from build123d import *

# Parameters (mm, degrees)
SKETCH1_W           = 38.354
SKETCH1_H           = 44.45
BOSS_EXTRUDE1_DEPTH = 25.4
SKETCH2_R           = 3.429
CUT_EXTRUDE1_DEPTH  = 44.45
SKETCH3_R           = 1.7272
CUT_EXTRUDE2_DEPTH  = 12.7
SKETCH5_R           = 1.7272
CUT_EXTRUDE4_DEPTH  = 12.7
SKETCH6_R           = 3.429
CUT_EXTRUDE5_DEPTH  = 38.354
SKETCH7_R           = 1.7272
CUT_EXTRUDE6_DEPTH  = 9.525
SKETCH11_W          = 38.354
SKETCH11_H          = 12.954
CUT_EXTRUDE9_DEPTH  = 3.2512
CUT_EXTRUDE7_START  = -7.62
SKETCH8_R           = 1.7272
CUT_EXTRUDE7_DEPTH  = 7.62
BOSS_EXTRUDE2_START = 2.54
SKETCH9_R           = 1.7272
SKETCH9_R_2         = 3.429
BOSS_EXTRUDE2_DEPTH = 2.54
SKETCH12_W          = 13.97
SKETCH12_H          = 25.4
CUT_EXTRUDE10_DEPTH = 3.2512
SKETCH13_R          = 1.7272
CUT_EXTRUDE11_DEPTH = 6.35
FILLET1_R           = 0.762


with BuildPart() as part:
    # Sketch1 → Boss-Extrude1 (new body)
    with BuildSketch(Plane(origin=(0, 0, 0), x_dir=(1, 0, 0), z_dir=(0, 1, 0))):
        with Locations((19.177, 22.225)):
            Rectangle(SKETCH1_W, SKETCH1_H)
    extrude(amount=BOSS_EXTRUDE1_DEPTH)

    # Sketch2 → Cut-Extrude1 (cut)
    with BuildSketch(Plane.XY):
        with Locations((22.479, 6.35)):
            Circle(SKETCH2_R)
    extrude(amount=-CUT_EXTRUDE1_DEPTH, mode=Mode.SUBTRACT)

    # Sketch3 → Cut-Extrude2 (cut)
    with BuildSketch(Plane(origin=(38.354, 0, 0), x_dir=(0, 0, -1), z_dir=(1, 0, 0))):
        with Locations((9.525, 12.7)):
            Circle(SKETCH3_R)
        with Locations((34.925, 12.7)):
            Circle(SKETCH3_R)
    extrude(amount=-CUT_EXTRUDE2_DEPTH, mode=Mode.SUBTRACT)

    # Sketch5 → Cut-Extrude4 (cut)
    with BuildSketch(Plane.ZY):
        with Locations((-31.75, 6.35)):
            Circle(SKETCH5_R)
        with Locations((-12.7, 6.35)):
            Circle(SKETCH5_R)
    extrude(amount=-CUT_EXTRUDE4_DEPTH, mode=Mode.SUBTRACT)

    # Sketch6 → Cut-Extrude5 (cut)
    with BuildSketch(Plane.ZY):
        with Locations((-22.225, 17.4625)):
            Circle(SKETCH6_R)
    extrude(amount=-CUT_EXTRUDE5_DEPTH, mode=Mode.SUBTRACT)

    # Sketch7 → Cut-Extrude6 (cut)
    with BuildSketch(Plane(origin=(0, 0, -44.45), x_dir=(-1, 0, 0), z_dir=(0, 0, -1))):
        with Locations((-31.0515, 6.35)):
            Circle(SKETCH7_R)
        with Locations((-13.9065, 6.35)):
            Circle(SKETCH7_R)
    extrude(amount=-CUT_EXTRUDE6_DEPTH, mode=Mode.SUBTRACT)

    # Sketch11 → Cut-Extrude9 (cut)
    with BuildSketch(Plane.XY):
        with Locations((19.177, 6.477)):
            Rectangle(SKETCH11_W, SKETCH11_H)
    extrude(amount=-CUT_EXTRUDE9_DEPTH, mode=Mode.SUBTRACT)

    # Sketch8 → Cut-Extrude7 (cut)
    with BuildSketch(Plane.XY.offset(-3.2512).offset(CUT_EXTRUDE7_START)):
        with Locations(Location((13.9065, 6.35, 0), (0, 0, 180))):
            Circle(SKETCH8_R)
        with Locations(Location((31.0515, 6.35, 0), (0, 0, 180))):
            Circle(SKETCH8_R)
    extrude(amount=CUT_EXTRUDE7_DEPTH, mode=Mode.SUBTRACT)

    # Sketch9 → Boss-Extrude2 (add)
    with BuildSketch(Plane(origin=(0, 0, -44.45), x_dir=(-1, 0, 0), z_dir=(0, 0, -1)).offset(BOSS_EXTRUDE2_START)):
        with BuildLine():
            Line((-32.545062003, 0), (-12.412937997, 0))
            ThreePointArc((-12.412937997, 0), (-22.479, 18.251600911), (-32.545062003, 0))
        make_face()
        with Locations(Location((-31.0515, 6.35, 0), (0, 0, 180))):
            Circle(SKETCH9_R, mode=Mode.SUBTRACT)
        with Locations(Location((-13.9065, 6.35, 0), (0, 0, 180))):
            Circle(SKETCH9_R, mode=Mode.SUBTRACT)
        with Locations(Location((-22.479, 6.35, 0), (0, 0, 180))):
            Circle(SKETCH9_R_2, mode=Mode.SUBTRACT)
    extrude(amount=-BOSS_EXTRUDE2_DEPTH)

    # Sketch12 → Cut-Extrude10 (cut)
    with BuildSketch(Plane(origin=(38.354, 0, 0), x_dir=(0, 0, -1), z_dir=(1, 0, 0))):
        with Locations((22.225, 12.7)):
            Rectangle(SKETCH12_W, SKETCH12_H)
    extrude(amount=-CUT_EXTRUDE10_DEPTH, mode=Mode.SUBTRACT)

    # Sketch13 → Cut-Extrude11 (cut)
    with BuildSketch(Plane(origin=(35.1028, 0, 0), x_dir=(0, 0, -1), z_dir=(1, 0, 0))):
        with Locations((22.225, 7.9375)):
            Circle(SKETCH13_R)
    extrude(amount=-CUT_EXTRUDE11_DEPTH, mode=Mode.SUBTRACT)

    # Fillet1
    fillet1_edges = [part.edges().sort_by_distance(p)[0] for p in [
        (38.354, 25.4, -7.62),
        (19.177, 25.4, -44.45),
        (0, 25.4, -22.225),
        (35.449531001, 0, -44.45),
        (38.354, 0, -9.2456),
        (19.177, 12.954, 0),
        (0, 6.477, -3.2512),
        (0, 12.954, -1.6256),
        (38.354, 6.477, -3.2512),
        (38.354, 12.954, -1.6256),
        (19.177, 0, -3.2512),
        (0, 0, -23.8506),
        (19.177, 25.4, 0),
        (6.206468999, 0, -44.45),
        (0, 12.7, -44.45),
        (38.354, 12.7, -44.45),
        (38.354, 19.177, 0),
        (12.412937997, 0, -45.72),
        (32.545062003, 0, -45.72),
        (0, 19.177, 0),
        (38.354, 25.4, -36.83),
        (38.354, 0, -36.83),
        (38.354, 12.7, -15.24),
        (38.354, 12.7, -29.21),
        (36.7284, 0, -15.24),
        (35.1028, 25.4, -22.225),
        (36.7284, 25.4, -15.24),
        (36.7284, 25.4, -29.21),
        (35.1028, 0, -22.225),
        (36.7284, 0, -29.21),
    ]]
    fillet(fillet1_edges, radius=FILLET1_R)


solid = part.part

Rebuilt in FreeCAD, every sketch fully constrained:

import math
import FreeCAD as App
import Part
import Sketcher

V = App.Vector
Q = App.Units.Quantity


def edges_at(feature, points):
    """Names of the edges that pass closest to the given points."""
    edges = feature.Shape.Edges
    near = lambda p: min(range(len(edges)), key=lambda i: edges[i].distToShape(Part.Vertex(*p))[0])
    return sorted({f"Edge{near(p) + 1}" for p in points})


def add_polygon(sketch, points):
    """Adds a closed chain of lines whose ends are joined by coincident constraints."""
    first, n = sketch.GeometryCount, len(points)
    for a, b in zip(points, points[1:] + points[:1]):
        sketch.addGeometry(Part.LineSegment(App.Vector(*a, 0), App.Vector(*b, 0)), False)
    for i in range(n):
        sketch.addConstraint(Sketcher.Constraint("Coincident", first + i, 2, first + (i + 1) % n, 1))

doc = App.newDocument("Part")
params = doc.addObject("Spreadsheet::Sheet", "Params")
for row, (alias, value) in enumerate([
    ("sketch1_width", "1.51 in"),
    ("sketch1_height", "1.75 in"),
    ("pad1_length", "1 in"),
    ("sketch2_diameter", "0.27 in"),
    ("pocket1_length", "1.75 in"),
    ("sketch3_diameter", "0.136 in"),
    ("pocket2_length", "0.5 in"),
    ("sketch4_diameter", "0.136 in"),
    ("pocket3_length", "0.5 in"),
    ("sketch5_diameter", "0.27 in"),
    ("pocket4_length", "1.51 in"),
    ("sketch6_diameter", "0.136 in"),
    ("pocket5_length", "0.375 in"),
    ("sketch7_width", "1.51 in"),
    ("sketch7_height", "0.51 in"),
    ("pocket6_length", "0.128 in"),
    ("sketch8_diameter", "0.136 in"),
    ("pocket7_length", "0.3 in"),
    ("sketch9_diameter", "0.27 in"),
    ("sketch9_diameter2", "0.136 in"),
    ("pad2_length", "0.1 in"),
    ("sketch10_width", "1 in"),
    ("sketch10_height", "0.55 in"),
    ("pocket8_length", "0.128 in"),
    ("sketch11_diameter", "0.136 in"),
    ("pocket9_length", "0.25 in"),
    ("fillet_radius", "0.03 in"),
], start=1):
    params.set(f"A{row}", alias)
    params.set(f"B{row}", "=" + value)
    params.setAlias(f"B{row}", alias)

body = doc.addObject("PartDesign::Body", "Body")

# Sketch on XZ plane
sketch1 = body.newObject("Sketcher::SketchObject", "Sketch")
sketch1.AttachmentSupport = (doc.getObject("XZ_Plane"), [""])
sketch1.MapMode = "FlatFace"
add_polygon(sketch1, [(0, -44), (0, 0), (38, 0), (38, -44)])  # lines 0-3
sketch1.addConstraint(Sketcher.Constraint("Vertical", 0))
sketch1.addConstraint(Sketcher.Constraint("Horizontal", 1))
sketch1.addConstraint(Sketcher.Constraint("Vertical", 2))
sketch1.addConstraint(Sketcher.Constraint("Horizontal", 3))
sketch1.addConstraint(Sketcher.Constraint("Coincident", 0, 2, -1, 1))
sketch1.addConstraint(Sketcher.Constraint("DistanceX", 1, 1, 1, 2, Q("1.51 in")))
sketch1.addConstraint(Sketcher.Constraint("DistanceY", 0, 1, 0, 2, Q("1.75 in")))
sketch1.setExpression("Constraints[9]", "Params.sketch1_width")
sketch1.setExpression("Constraints[10]", "Params.sketch1_height")
pad1 = body.newObject("PartDesign::Pad", "Pad")
pad1.Profile = sketch1
pad1.setExpression("Length", "Params.pad1_length")
pad1.Reversed = True

# Sketch on XY plane
sketch2 = body.newObject("Sketcher::SketchObject", "Sketch001")
sketch2.AttachmentSupport = (doc.getObject("XY_Plane"), [""])
sketch2.MapMode = "FlatFace"
sketch2.addGeometry(Part.Circle(V(22.5, 6.3, 0), V(0, 0, 1), 3.4), False)
sketch2.addConstraint(Sketcher.Constraint("Diameter", 0, Q("0.27 in")))
sketch2.addConstraint(Sketcher.Constraint("DistanceY", -1, 1, 0, 3, Q("0.25 in")))
sketch2.addConstraint(Sketcher.Constraint("DistanceX", -1, 1, 0, 3, Q("0.885 in")))
sketch2.setExpression("Constraints[0]", "Params.sketch2_diameter")
pocket1 = body.newObject("PartDesign::Pocket", "Pocket")
pocket1.Profile = sketch2
pocket1.setExpression("Length", "Params.pocket1_length")

# Sketch on YZ plane
sketch3 = body.newObject("Sketcher::SketchObject", "Sketch002")
sketch3.AttachmentSupport = (doc.getObject("YZ_Plane"), [""])
sketch3.MapMode = "FlatFace"
sketch3.AttachmentOffset = App.Placement(V(0, 0, 1.51 * 25.4), App.Rotation())
sketch3.addGeometry(Part.Circle(V(12.7, -9.5, 0), V(0, 0, 1), 1.7), False)
sketch3.addGeometry(Part.Circle(V(12.7, -34.9, 0), V(0, 0, 1), 1.7), False)
sketch3.addConstraint(Sketcher.Constraint("Equal", 0, 1))
sketch3.addConstraint(Sketcher.Constraint("Vertical", 0, 3, 1, 3))
sketch3.addConstraint(Sketcher.Constraint("Diameter", 0, Q("0.136 in")))
sketch3.addConstraint(Sketcher.Constraint("DistanceY", 1, 3, 0, 3, Q("1 in")))
sketch3.addConstraint(Sketcher.Constraint("DistanceX", -1, 1, 0, 3, Q("0.5 in")))
sketch3.addConstraint(Sketcher.Constraint("DistanceY", 0, 3, -1, 1, Q("0.375 in")))
sketch3.setExpression("Constraints[2]", "Params.sketch3_diameter")
pocket2 = body.newObject("PartDesign::Pocket", "Pocket001")
pocket2.Profile = sketch3
pocket2.setExpression("Length", "Params.pocket2_length")

# Sketch on YZ plane
sketch4 = body.newObject("Sketcher::SketchObject", "Sketch003")
sketch4.AttachmentSupport = (doc.getObject("YZ_Plane"), [""])
sketch4.MapMode = "FlatFace"
sketch4.addGeometry(Part.Circle(V(6.3, -31.8, 0), V(0, 0, 1), 1.7), False)
sketch4.addGeometry(Part.Circle(V(6.3, -12.7, 0), V(0, 0, 1), 1.7), False)
sketch4.addConstraint(Sketcher.Constraint("Equal", 0, 1))
sketch4.addConstraint(Sketcher.Constraint("Vertical", 0, 3, 1, 3))
sketch4.addConstraint(Sketcher.Constraint("Diameter", 0, Q("0.136 in")))
sketch4.addConstraint(Sketcher.Constraint("DistanceY", 1, 3, -1, 1, Q("0.5 in")))
sketch4.addConstraint(Sketcher.Constraint("DistanceX", -1, 1, 0, 3, Q("0.25 in")))
sketch4.addConstraint(Sketcher.Constraint("DistanceY", 0, 3, -1, 1, Q("1.25 in")))
sketch4.setExpression("Constraints[2]", "Params.sketch4_diameter")
pocket3 = body.newObject("PartDesign::Pocket", "Pocket002")
pocket3.Profile = sketch4
pocket3.setExpression("Length", "Params.pocket3_length")
pocket3.Reversed = True

# Sketch on YZ plane
sketch5 = body.newObject("Sketcher::SketchObject", "Sketch004")
sketch5.AttachmentSupport = (doc.getObject("YZ_Plane"), [""])
sketch5.MapMode = "FlatFace"
sketch5.addGeometry(Part.Circle(V(17.5, -22.2, 0), V(0, 0, 1), 3.4), False)
sketch5.addConstraint(Sketcher.Constraint("Diameter", 0, Q("0.27 in")))
sketch5.addConstraint(Sketcher.Constraint("DistanceX", -1, 1, 0, 3, Q("0.6875 in")))
sketch5.addConstraint(Sketcher.Constraint("DistanceY", 0, 3, -1, 1, Q("0.875 in")))
sketch5.setExpression("Constraints[0]", "Params.sketch5_diameter")
pocket4 = body.newObject("PartDesign::Pocket", "Pocket003")
pocket4.Profile = sketch5
pocket4.setExpression("Length", "Params.pocket4_length")
pocket4.Reversed = True

# Sketch on XY plane
sketch6 = body.newObject("Sketcher::SketchObject", "Sketch005")
sketch6.AttachmentSupport = (doc.getObject("XY_Plane"), [""])
sketch6.MapMode = "FlatFace"
sketch6.AttachmentOffset = App.Placement(V(0, 0, -1.75 * 25.4), App.Rotation())
sketch6.addGeometry(Part.Circle(V(31.1, 6.3, 0), V(0, 0, 1), 1.7), False)
sketch6.addGeometry(Part.Circle(V(13.9, 6.3, 0), V(0, 0, 1), 1.7), False)
sketch6.addConstraint(Sketcher.Constraint("Equal", 0, 1))
sketch6.addConstraint(Sketcher.Constraint("Horizontal", 0, 3, 1, 3))
sketch6.addConstraint(Sketcher.Constraint("Diameter", 0, Q("0.136 in")))
sketch6.addConstraint(Sketcher.Constraint("DistanceY", -1, 1, 0, 3, Q("0.25 in")))
sketch6.addConstraint(Sketcher.Constraint("DistanceX", 1, 3, 0, 3, Q("0.675 in")))
sketch6.addConstraint(Sketcher.Constraint("DistanceX", -1, 1, 0, 3, Q("1.2225 in")))
sketch6.setExpression("Constraints[2]", "Params.sketch6_diameter")
pocket5 = body.newObject("PartDesign::Pocket", "Pocket004")
pocket5.Profile = sketch6
pocket5.setExpression("Length", "Params.pocket5_length")
pocket5.Reversed = True

# Sketch on XY plane
sketch7 = body.newObject("Sketcher::SketchObject", "Sketch006")
sketch7.AttachmentSupport = (doc.getObject("XY_Plane"), [""])
sketch7.MapMode = "FlatFace"
add_polygon(sketch7, [(0, 13), (0, 0), (38, 0), (38, 13)])  # lines 0-3
sketch7.addConstraint(Sketcher.Constraint("Vertical", 0))
sketch7.addConstraint(Sketcher.Constraint("Horizontal", 1))
sketch7.addConstraint(Sketcher.Constraint("Vertical", 2))
sketch7.addConstraint(Sketcher.Constraint("Horizontal", 3))
sketch7.addConstraint(Sketcher.Constraint("Coincident", 0, 2, -1, 1))
sketch7.addConstraint(Sketcher.Constraint("DistanceX", 1, 1, 1, 2, Q("1.51 in")))
sketch7.addConstraint(Sketcher.Constraint("DistanceY", 0, 2, 0, 1, Q("0.51 in")))
sketch7.setExpression("Constraints[9]", "Params.sketch7_width")
sketch7.setExpression("Constraints[10]", "Params.sketch7_height")
pocket6 = body.newObject("PartDesign::Pocket", "Pocket005")
pocket6.Profile = sketch7
pocket6.setExpression("Length", "Params.pocket6_length")

# Sketch on XY plane
sketch8 = body.newObject("Sketcher::SketchObject", "Sketch007")
sketch8.AttachmentSupport = (doc.getObject("XY_Plane"), [""])
sketch8.MapMode = "FlatFace"
sketch8.AttachmentOffset = App.Placement(V(0, 0, -0.428 * 25.4), App.Rotation())
sketch8.addGeometry(Part.Circle(V(13.9, 6.3, 0), V(0, 0, 1), 1.7), False)
sketch8.addGeometry(Part.Circle(V(31.1, 6.3, 0), V(0, 0, 1), 1.7), False)
sketch8.addConstraint(Sketcher.Constraint("Equal", 0, 1))
sketch8.addConstraint(Sketcher.Constraint("Horizontal", 0, 3, 1, 3))
sketch8.addConstraint(Sketcher.Constraint("Diameter", 0, Q("0.136 in")))
sketch8.addConstraint(Sketcher.Constraint("DistanceY", -1, 1, 0, 3, Q("0.25 in")))
sketch8.addConstraint(Sketcher.Constraint("DistanceX", 0, 3, 1, 3, Q("0.675 in")))
sketch8.addConstraint(Sketcher.Constraint("DistanceX", -1, 1, 0, 3, Q("0.5475 in")))
sketch8.setExpression("Constraints[2]", "Params.sketch8_diameter")
pocket7 = body.newObject("PartDesign::Pocket", "Pocket006")
pocket7.Profile = sketch8
pocket7.setExpression("Length", "Params.pocket7_length")
pocket7.Reversed = True

# Sketch on XY plane
sketch9 = body.newObject("Sketcher::SketchObject", "Sketch008")
sketch9.AttachmentSupport = (doc.getObject("XY_Plane"), [""])
sketch9.MapMode = "FlatFace"
sketch9.AttachmentOffset = App.Placement(V(0, 0, -1.85 * 25.4), App.Rotation())
sketch9.addGeometry(Part.LineSegment(V(32.5, 0, 0), V(12.4, 0, 0)), False)
sketch9.addGeometry(Part.ArcOfCircle(Part.Circle(V(22.5, 6.3, 0), V(0, 0, 1), 11.9), math.radians(-32), math.radians(212)), False)
sketch9.addGeometry(Part.Circle(V(31.1, 6.3, 0), V(0, 0, 1), 1.7), False)
sketch9.addGeometry(Part.Circle(V(22.5, 6.3, 0), V(0, 0, 1), 3.4), False)
sketch9.addGeometry(Part.Circle(V(13.9, 6.3, 0), V(0, 0, 1), 1.7), False)
sketch9.addConstraint(Sketcher.Constraint("Coincident", 0, 1, 1, 1))
sketch9.addConstraint(Sketcher.Constraint("Coincident", 1, 2, 0, 2))
sketch9.addConstraint(Sketcher.Constraint("Horizontal", 0))
sketch9.addConstraint(Sketcher.Constraint("Coincident", 3, 3, 1, 3))
sketch9.addConstraint(Sketcher.Constraint("Equal", 2, 4))
sketch9.addConstraint(Sketcher.Constraint("PointOnObject", 0, 1, -1))
sketch9.addConstraint(Sketcher.Constraint("Horizontal", 1, 3, 2, 3))
sketch9.addConstraint(Sketcher.Constraint("Horizontal", 3, 3, 4, 3))
sketch9.addConstraint(Sketcher.Constraint("Diameter", 3, Q("0.27 in")))
sketch9.addConstraint(Sketcher.Constraint("Diameter", 2, Q("0.136 in")))
sketch9.addConstraint(Sketcher.Constraint("DistanceY", -1, 1, 1, 3, Q("0.25 in")))
sketch9.addConstraint(Sketcher.Constraint("Radius", 1, 11.901601))
sketch9.addConstraint(Sketcher.Constraint("DistanceX", -1, 1, 1, 3, Q("0.885 in")))
sketch9.addConstraint(Sketcher.Constraint("DistanceX", 4, 3, 2, 3, Q("0.675 in")))
sketch9.addConstraint(Sketcher.Constraint("DistanceX", -1, 1, 2, 3, Q("1.2225 in")))
sketch9.setExpression("Constraints[8]", "Params.sketch9_diameter")
sketch9.setExpression("Constraints[9]", "Params.sketch9_diameter2")
pad2 = body.newObject("PartDesign::Pad", "Pad001")
pad2.Profile = sketch9
pad2.setExpression("Length", "Params.pad2_length")

# Sketch on YZ plane
sketch10 = body.newObject("Sketcher::SketchObject", "Sketch009")
sketch10.AttachmentSupport = (doc.getObject("YZ_Plane"), [""])
sketch10.MapMode = "FlatFace"
sketch10.AttachmentOffset = App.Placement(V(0, 0, 1.51 * 25.4), App.Rotation())
add_polygon(sketch10, [(25, -15), (0, -15), (0, -29), (25, -29)])  # lines 0-3
sketch10.addConstraint(Sketcher.Constraint("Horizontal", 0))
sketch10.addConstraint(Sketcher.Constraint("Vertical", 1))
sketch10.addConstraint(Sketcher.Constraint("Horizontal", 2))
sketch10.addConstraint(Sketcher.Constraint("Vertical", 3))
sketch10.addConstraint(Sketcher.Constraint("PointOnObject", 0, 2, -2))
sketch10.addConstraint(Sketcher.Constraint("DistanceX", 0, 2, 0, 1, Q("1 in")))
sketch10.addConstraint(Sketcher.Constraint("DistanceY", 1, 2, 1, 1, Q("0.55 in")))
sketch10.addConstraint(Sketcher.Constraint("DistanceY", 0, 2, -1, 1, Q("0.6 in")))
sketch10.setExpression("Constraints[9]", "Params.sketch10_width")
sketch10.setExpression("Constraints[10]", "Params.sketch10_height")
pocket8 = body.newObject("PartDesign::Pocket", "Pocket007")
pocket8.Profile = sketch10
pocket8.setExpression("Length", "Params.pocket8_length")

# Sketch on YZ plane
sketch11 = body.newObject("Sketcher::SketchObject", "Sketch010")
sketch11.AttachmentSupport = (doc.getObject("YZ_Plane"), [""])
sketch11.MapMode = "FlatFace"
sketch11.AttachmentOffset = App.Placement(V(0, 0, 1.382 * 25.4), App.Rotation())
sketch11.addGeometry(Part.Circle(V(7.9, -22.2, 0), V(0, 0, 1), 1.7), False)
sketch11.addConstraint(Sketcher.Constraint("Diameter", 0, Q("0.136 in")))
sketch11.addConstraint(Sketcher.Constraint("DistanceX", -1, 1, 0, 3, Q("0.3125 in")))
sketch11.addConstraint(Sketcher.Constraint("DistanceY", 0, 3, -1, 1, Q("0.875 in")))
sketch11.setExpression("Constraints[0]", "Params.sketch11_diameter")
pocket9 = body.newObject("PartDesign::Pocket", "Pocket008")
pocket9.Profile = sketch11
pocket9.setExpression("Length", "Params.pocket9_length")
doc.recompute()

fillet = body.newObject("PartDesign::Fillet", "Fillet")
fillet.Base = (pocket9, edges_at(pocket9, [
    (38.354, 25.4, -7.62),
    (19.177, 25.4, -44.45),
    (0, 25.4, -22.225),
    (35.45, 0, -44.45),
    (38.354, 0, -9.246),
    (19.177, 12.954, 0),
    (0, 6.477, -3.251),
    (0, 12.954, -1.626),
    (38.354, 6.477, -3.251),
    (38.354, 12.954, -1.626),
    (19.177, 0, -3.251),
    (0, 0, -23.851),
    (19.177, 25.4, 0),
    (6.206, 0, -44.45),
    (0, 12.7, -44.45),
    (38.354, 12.7, -44.45),
    (38.354, 19.177, 0),
    (12.413, 0, -45.72),
    (32.545, 0, -45.72),
    (0, 19.177, 0),
    (38.354, 25.4, -36.83),
    (38.354, 0, -36.83),
    (38.354, 12.7, -15.24),
    (38.354, 12.7, -29.21),
    (36.728, 0, -15.24),
    (35.103, 25.4, -22.225),
    (36.728, 25.4, -15.24),
    (36.728, 25.4, -29.21),
    (35.103, 0, -22.225),
    (36.728, 0, -29.21),
]))
fillet.setExpression("Radius", "Params.fillet_radius")

doc.recompute()
